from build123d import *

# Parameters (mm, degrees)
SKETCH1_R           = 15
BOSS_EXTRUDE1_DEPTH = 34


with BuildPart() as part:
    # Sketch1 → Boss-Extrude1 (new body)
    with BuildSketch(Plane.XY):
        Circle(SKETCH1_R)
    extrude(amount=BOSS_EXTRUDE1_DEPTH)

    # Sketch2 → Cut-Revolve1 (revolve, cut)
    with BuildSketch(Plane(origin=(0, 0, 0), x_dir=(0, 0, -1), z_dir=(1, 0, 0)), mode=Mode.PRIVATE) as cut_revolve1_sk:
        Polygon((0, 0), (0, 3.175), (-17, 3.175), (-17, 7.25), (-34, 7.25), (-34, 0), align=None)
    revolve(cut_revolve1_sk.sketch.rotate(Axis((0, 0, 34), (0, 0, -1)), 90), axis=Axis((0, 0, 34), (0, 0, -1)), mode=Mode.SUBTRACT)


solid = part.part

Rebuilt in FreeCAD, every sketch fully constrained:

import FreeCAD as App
import Part
import Sketcher
Q = App.Units.Quantity


def add_polygon(sketch, points):
    """Adds a closed chain of lines whose ends are joined by coincident constraints."""
    first, n = sketch.GeometryCount, len(points)
    for a, b in zip(points, points[1:] + points[:1]):
        sketch.addGeometry(Part.LineSegment(App.Vector(*a, 0), App.Vector(*b, 0)), False)
    for i in range(n):
        sketch.addConstraint(Sketcher.Constraint("Coincident", first + i, 2, first + (i + 1) % n, 1))

doc = App.newDocument("Part")
params = doc.addObject("Spreadsheet::Sheet", "Params")
for row, (alias, value) in enumerate([
    ("sketch1_diameter", "30 mm"),
    ("pad1_length", "34 mm"),
    ("sketch2_height", "17 mm"),
    ("sketch2_width", "7.25 mm"),
    ("groove_angle", "360 deg"),
], start=1):
    params.set(f"A{row}", alias)
    params.set(f"B{row}", "=" + value)
    params.setAlias(f"B{row}", alias)

body = doc.addObject("PartDesign::Body", "Body")

# Sketch on XY plane
sketch1 = body.newObject("Sketcher::SketchObject", "Sketch")
sketch1.AttachmentSupport = (doc.getObject("XY_Plane"), [""])
sketch1.MapMode = "FlatFace"
sketch1.addGeometry(Part.Circle(App.Vector(0, 0, 0), App.Vector(0, 0, 1), 15), False)
sketch1.addConstraint([
    Sketcher.Constraint("Coincident", 0, 3, -1, 1),
    Sketcher.Constraint("Diameter", 0, Q("30 mm")),
])
sketch1.setExpression("Constraints[1]", "Params.sketch1_diameter")
pad1 = body.newObject("PartDesign::Pad", "Pad")
pad1.Profile = sketch1
pad1.setExpression("Length", "Params.pad1_length")

# Sketch on YZ plane
sketch2 = body.newObject("Sketcher::SketchObject", "Sketch001")
sketch2.AttachmentSupport = (doc.getObject("YZ_Plane"), [""])
sketch2.MapMode = "FlatFace"
add_polygon(sketch2, [(0, 0), (3.2, 0), (3.2, 17), (7.2, 17), (7.2, 34), (0, 34)])  # lines 0-5
sketch2.addConstraint([
    Sketcher.Constraint("Horizontal", 0),
    Sketcher.Constraint("Vertical", 1),
    Sketcher.Constraint("Horizontal", 2),
    Sketcher.Constraint("Vertical", 3),
    Sketcher.Constraint("Horizontal", 4),
    Sketcher.Constraint("Vertical", 5),
    Sketcher.Constraint("Coincident", 5, 2, -1, 1),
    Sketcher.Constraint("Equal", 1, 3),
    Sketcher.Constraint("DistanceY", 1, 1, 1, 2, Q("17 mm")),
    Sketcher.Constraint("DistanceX", 4, 2, 4, 1, Q("7.25 mm")),
    Sketcher.Constraint("DistanceX", 0, 1, 0, 2, Q("3.175 mm")),
])
sketch2.setExpression("Constraints[14]", "Params.sketch2_height")
sketch2.setExpression("Constraints[15]", "Params.sketch2_width")
groove = body.newObject("PartDesign::Groove", "Groove")
groove.Profile = sketch2
groove.ReferenceAxis = (sketch2, ["V_Axis"])
groove.setExpression("Angle", "Params.groove_angle")

doc.recompute()
